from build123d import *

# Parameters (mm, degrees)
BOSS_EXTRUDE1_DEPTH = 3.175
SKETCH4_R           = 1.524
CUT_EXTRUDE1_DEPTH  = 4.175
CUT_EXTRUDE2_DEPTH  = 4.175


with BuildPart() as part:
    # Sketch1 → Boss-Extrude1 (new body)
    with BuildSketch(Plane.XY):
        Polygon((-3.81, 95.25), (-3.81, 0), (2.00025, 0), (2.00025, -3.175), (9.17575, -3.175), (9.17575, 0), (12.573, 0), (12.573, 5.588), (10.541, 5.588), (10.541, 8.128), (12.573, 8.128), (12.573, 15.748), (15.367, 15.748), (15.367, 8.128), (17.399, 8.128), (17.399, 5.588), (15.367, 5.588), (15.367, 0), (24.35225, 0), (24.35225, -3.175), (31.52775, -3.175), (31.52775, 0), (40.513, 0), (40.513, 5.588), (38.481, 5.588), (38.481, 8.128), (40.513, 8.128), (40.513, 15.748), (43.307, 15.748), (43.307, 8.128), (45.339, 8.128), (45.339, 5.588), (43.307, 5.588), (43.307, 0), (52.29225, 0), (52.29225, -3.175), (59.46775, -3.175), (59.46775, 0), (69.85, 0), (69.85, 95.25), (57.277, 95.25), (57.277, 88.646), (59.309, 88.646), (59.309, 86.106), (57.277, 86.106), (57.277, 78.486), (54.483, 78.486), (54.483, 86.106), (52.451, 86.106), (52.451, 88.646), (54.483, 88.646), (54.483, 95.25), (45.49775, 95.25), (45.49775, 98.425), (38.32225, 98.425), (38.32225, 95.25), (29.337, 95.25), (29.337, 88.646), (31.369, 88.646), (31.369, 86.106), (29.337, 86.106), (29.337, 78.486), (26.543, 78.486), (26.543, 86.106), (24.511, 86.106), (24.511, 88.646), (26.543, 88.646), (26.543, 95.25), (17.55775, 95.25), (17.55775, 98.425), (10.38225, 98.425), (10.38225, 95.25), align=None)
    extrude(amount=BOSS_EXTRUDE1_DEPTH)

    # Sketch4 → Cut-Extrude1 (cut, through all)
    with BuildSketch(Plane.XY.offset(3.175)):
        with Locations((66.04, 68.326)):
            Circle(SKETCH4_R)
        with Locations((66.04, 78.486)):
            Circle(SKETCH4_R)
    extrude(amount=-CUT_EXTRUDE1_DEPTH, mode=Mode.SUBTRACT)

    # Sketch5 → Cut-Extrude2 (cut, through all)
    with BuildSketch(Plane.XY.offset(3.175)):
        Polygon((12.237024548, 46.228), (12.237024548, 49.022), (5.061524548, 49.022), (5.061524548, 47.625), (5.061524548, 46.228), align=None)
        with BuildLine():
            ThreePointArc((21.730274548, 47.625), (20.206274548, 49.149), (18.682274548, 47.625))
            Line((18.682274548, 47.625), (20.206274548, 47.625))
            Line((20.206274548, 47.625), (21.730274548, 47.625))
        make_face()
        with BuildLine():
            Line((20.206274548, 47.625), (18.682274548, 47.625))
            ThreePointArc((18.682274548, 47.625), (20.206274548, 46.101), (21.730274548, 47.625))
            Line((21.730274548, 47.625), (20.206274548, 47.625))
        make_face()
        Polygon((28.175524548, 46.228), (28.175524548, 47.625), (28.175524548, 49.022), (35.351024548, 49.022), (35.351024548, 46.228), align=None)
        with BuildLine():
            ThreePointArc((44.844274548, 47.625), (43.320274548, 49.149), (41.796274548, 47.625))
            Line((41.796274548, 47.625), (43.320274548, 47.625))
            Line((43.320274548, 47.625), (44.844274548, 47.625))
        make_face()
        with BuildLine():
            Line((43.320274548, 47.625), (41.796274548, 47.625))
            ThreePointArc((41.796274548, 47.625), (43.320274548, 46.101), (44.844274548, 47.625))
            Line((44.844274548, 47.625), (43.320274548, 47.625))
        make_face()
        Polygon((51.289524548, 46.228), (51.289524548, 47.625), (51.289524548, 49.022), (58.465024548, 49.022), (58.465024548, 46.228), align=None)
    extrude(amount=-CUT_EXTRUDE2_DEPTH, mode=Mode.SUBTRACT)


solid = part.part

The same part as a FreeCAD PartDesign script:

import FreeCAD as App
import Part
import Sketcher

V = App.Vector
Q = App.Units.Quantity


def add_polygon(sketch, points):
    """Adds a closed chain of lines whose ends are joined by coincident constraints."""
    first, n = sketch.GeometryCount, len(points)
    for a, b in zip(points, points[1:] + points[:1]):
        sketch.addGeometry(Part.LineSegment(App.Vector(*a, 0), App.Vector(*b, 0)), False)
    for i in range(n):
        sketch.addConstraint(Sketcher.Constraint("Coincident", first + i, 2, first + (i + 1) % n, 1))

doc = App.newDocument("Part")
body = doc.addObject("PartDesign::Body", "Body")

# Sketch on XY plane
sketch1 = body.newObject("Sketcher::SketchObject", "Sketch")
sketch1.AttachmentSupport = (doc.getObject("XY_Plane"), [""])
sketch1.MapMode = "FlatFace"
add_polygon(sketch1, [(-3.81, 95.25), (-3.81, 0), (2.00025, 0), (2.00025, -3.175), (9.17575, -3.175), (9.17575, 0), (12.573, 0), (12.573, 5.588), (10.541, 5.588), (10.541, 8.128), (12.573, 8.128), (12.573, 15.748), (15.367, 15.748), (15.367, 8.128), (17.399, 8.128), (17.399, 5.588), (15.367, 5.588), (15.367, 0), (24.35225, 0), (24.35225, -3.175), (31.52775, -3.175), (31.52775, 0), (40.513, 0), (40.513, 5.588), (38.481, 5.588), (38.481, 8.128), (40.513, 8.128), (40.513, 15.748), (43.307, 15.748), (43.307, 8.128), (45.339, 8.128), (45.339, 5.588), (43.307, 5.588), (43.307, 0), (52.29225, 0), (52.29225, -3.175), (59.46775, -3.175), (59.46775, 0), (69.85, 0), (69.85, 95.25), (57.277, 95.25), (57.277, 88.646), (59.309, 88.646), (59.309, 86.106), (57.277, 86.106), (57.277, 78.486), (54.483, 78.486), (54.483, 86.106), (52.451, 86.106), (52.451, 88.646), (54.483, 88.646), (54.483, 95.25), (45.49775, 95.25), (45.49775, 98.425), (38.32225, 98.425), (38.32225, 95.25), (29.337, 95.25), (29.337, 88.646), (31.369, 88.646), (31.369, 86.106), (29.337, 86.106), (29.337, 78.486), (26.543, 78.486), (26.543, 86.106), (24.511, 86.106), (24.511, 88.646), (26.543, 88.646), (26.543, 95.25), (17.55775, 95.25), (17.55775, 98.425), (10.38225, 98.425), (10.38225, 95.25)])  # lines 0-71
sketch1.addConstraint(Sketcher.Constraint("Vertical", 0))
sketch1.addConstraint(Sketcher.Constraint("Horizontal", 1))
sketch1.addConstraint(Sketcher.Constraint("Vertical", 2))
sketch1.addConstraint(Sketcher.Constraint("Horizontal", 3))
sketch1.addConstraint(Sketcher.Constraint("Vertical", 4))
sketch1.addConstraint(Sketcher.Constraint("Horizontal", 5))
sketch1.addConstraint(Sketcher.Constraint("Vertical", 6))
sketch1.addConstraint(Sketcher.Constraint("Horizontal", 7))
sketch1.addConstraint(Sketcher.Constraint("Vertical", 8))
sketch1.addConstraint(Sketcher.Constraint("Horizontal", 9))
sketch1.addConstraint(Sketcher.Constraint("Vertical", 10))
sketch1.addConstraint(Sketcher.Constraint("Horizontal", 11))
sketch1.addConstraint(Sketcher.Constraint("Vertical", 12))
sketch1.addConstraint(Sketcher.Constraint("Horizontal", 13))
sketch1.addConstraint(Sketcher.Constraint("Vertical", 14))
sketch1.addConstraint(Sketcher.Constraint("Horizontal", 15))
sketch1.addConstraint(Sketcher.Constraint("Vertical", 16))
sketch1.addConstraint(Sketcher.Constraint("Horizontal", 17))
sketch1.addConstraint(Sketcher.Constraint("Vertical", 18))
sketch1.addConstraint(Sketcher.Constraint("Horizontal", 19))
sketch1.addConstraint(Sketcher.Constraint("Vertical", 20))
sketch1.addConstraint(Sketcher.Constraint("Horizontal", 21))
sketch1.addConstraint(Sketcher.Constraint("Vertical", 22))
sketch1.addConstraint(Sketcher.Constraint("Horizontal", 23))
sketch1.addConstraint(Sketcher.Constraint("Vertical", 24))
sketch1.addConstraint(Sketcher.Constraint("Horizontal", 25))
sketch1.addConstraint(Sketcher.Constraint("Vertical", 26))
sketch1.addConstraint(Sketcher.Constraint("Horizontal", 27))
sketch1.addConstraint(Sketcher.Constraint("Vertical", 28))
sketch1.addConstraint(Sketcher.Constraint("Horizontal", 29))
sketch1.addConstraint(Sketcher.Constraint("Vertical", 30))
sketch1.addConstraint(Sketcher.Constraint("Horizontal", 31))
sketch1.addConstraint(Sketcher.Constraint("Vertical", 32))
sketch1.addConstraint(Sketcher.Constraint("Horizontal", 33))
sketch1.addConstraint(Sketcher.Constraint("Vertical", 34))
sketch1.addConstraint(Sketcher.Constraint("Horizontal", 35))
sketch1.addConstraint(Sketcher.Constraint("Vertical", 36))
sketch1.addConstraint(Sketcher.Constraint("Horizontal", 37))
sketch1.addConstraint(Sketcher.Constraint("Vertical", 38))
sketch1.addConstraint(Sketcher.Constraint("Horizontal", 39))
sketch1.addConstraint(Sketcher.Constraint("Vertical", 40))
sketch1.addConstraint(Sketcher.Constraint("Horizontal", 41))
sketch1.addConstraint(Sketcher.Constraint("Vertical", 42))
sketch1.addConstraint(Sketcher.Constraint("Horizontal", 43))
sketch1.addConstraint(Sketcher.Constraint("Vertical", 44))
sketch1.addConstraint(Sketcher.Constraint("Horizontal", 45))
sketch1.addConstraint(Sketcher.Constraint("Vertical", 46))
sketch1.addConstraint(Sketcher.Constraint("Horizontal", 47))
sketch1.addConstraint(Sketcher.Constraint("Vertical", 48))
sketch1.addConstraint(Sketcher.Constraint("Horizontal", 49))
sketch1.addConstraint(Sketcher.Constraint("Vertical", 50))
sketch1.addConstraint(Sketcher.Constraint("Horizontal", 51))
sketch1.addConstraint(Sketcher.Constraint("Vertical", 52))
sketch1.addConstraint(Sketcher.Constraint("Horizontal", 53))
sketch1.addConstraint(Sketcher.Constraint("Vertical", 54))
sketch1.addConstraint(Sketcher.Constraint("Horizontal", 55))
sketch1.addConstraint(Sketcher.Constraint("Vertical", 56))
sketch1.addConstraint(Sketcher.Constraint("Horizontal", 57))
sketch1.addConstraint(Sketcher.Constraint("Vertical", 58))
sketch1.addConstraint(Sketcher.Constraint("Horizontal", 59))
sketch1.addConstraint(Sketcher.Constraint("Vertical", 60))
sketch1.addConstraint(Sketcher.Constraint("Horizontal", 61))
sketch1.addConstraint(Sketcher.Constraint("Vertical", 62))
sketch1.addConstraint(Sketcher.Constraint("Horizontal", 63))
sketch1.addConstraint(Sketcher.Constraint("Vertical", 64))
sketch1.addConstraint(Sketcher.Constraint("Horizontal", 65))
sketch1.addConstraint(Sketcher.Constraint("Vertical", 66))
sketch1.addConstraint(Sketcher.Constraint("Horizontal", 67))
sketch1.addConstraint(Sketcher.Constraint("Vertical", 68))
sketch1.addConstraint(Sketcher.Constraint("Horizontal", 69))
sketch1.addConstraint(Sketcher.Constraint("Vertical", 70))
sketch1.addConstraint(Sketcher.Constraint("Horizontal", 71))
sketch1.addConstraint(Sketcher.Constraint("PointOnObject", 0, 2, -1))
sketch1.addConstraint(Sketcher.Constraint("PointOnObject", 4, 2, -1))
sketch1.addConstraint(Sketcher.Constraint("PointOnObject", 16, 2, -1))
sketch1.addConstraint(Sketcher.Constraint("PointOnObject", 20, 2, -1))
sketch1.addConstraint(Sketcher.Constraint("PointOnObject", 32, 2, -1))
sketch1.addConstraint(Sketcher.Constraint("PointOnObject", 36, 2, -1))
sketch1.addConstraint(Sketcher.Constraint("Horizontal", 9, 2, 12, 2))
sketch1.addConstraint(Sketcher.Constraint("Horizontal", 7, 2, 14, 2))
sketch1.addConstraint(Sketcher.Constraint("Horizontal", 3, 2, 18, 2))
sketch1.addConstraint(Sketcher.Constraint("Horizontal", 15, 2, 22, 2))
sketch1.addConstraint(Sketcher.Constraint("Horizontal", 13, 2, 24, 2))
sketch1.addConstraint(Sketcher.Constraint("Horizontal", 11, 2, 26, 2))
sketch1.addConstraint(Sketcher.Constraint("Horizontal", 25, 2, 28, 2))
sketch1.addConstraint(Sketcher.Constraint("Horizontal", 23, 2, 30, 2))
sketch1.addConstraint(Sketcher.Constraint("Horizontal", 19, 2, 34, 2))
sketch1.addConstraint(Sketcher.Constraint("Horizontal", 43, 2, 46, 2))
sketch1.addConstraint(Sketcher.Constraint("Horizontal", 41, 2, 48, 2))
sketch1.addConstraint(Sketcher.Constraint("Horizontal", 39, 2, 50, 2))
sketch1.addConstraint(Sketcher.Constraint("Horizontal", 51, 2, 54, 2))
sketch1.addConstraint(Sketcher.Constraint("Horizontal", 49, 2, 56, 2))
sketch1.addConstraint(Sketcher.Constraint("Horizontal", 47, 2, 58, 2))
sketch1.addConstraint(Sketcher.Constraint("Horizontal", 45, 2, 60, 2))
sketch1.addConstraint(Sketcher.Constraint("Horizontal", 59, 2, 62, 2))
sketch1.addConstraint(Sketcher.Constraint("Horizontal", 57, 2, 64, 2))
sketch1.addConstraint(Sketcher.Constraint("Horizontal", 55, 2, 66, 2))
sketch1.addConstraint(Sketcher.Constraint("Horizontal", 53, 2, 68, 2))
sketch1.addConstraint(Sketcher.Constraint("Horizontal", 67, 2, 70, 2))
sketch1.addConstraint(Sketcher.Constraint("Vertical", 6, 2, 9, 2))
sketch1.addConstraint(Sketcher.Constraint("Vertical", 12, 2, 15, 2))
sketch1.addConstraint(Sketcher.Constraint("Vertical", 22, 2, 25, 2))
sketch1.addConstraint(Sketcher.Constraint("Vertical", 28, 2, 31, 2))
sketch1.addConstraint(Sketcher.Constraint("Vertical", 40, 2, 43, 2))
sketch1.addConstraint(Sketcher.Constraint("Vertical", 46, 2, 49, 2))
sketch1.addConstraint(Sketcher.Constraint("Vertical", 56, 2, 59, 2))
sketch1.addConstraint(Sketcher.Constraint("Vertical", 62, 2, 65, 2))
sketch1.addConstraint(Sketcher.Constraint("Equal", 9, 13))
sketch1.addConstraint(Sketcher.Constraint("Equal", 3, 19))
sketch1.addConstraint(Sketcher.Constraint("Equal", 17, 21))
sketch1.addConstraint(Sketcher.Constraint("Equal", 15, 23))
sketch1.addConstraint(Sketcher.Constraint("Equal", 11, 27))
sketch1.addConstraint(Sketcher.Constraint("Equal", 25, 29))
sketch1.addConstraint(Sketcher.Constraint("Equal", 21, 33))
sketch1.addConstraint(Sketcher.Constraint("Equal", 19, 35))
sketch1.addConstraint(Sketcher.Constraint("Equal", 31, 41))
sketch1.addConstraint(Sketcher.Constraint("Equal", 27, 45))
sketch1.addConstraint(Sketcher.Constraint("Equal", 43, 47))
sketch1.addConstraint(Sketcher.Constraint("Equal", 33, 51))
sketch1.addConstraint(Sketcher.Constraint("Equal", 35, 53))
sketch1.addConstraint(Sketcher.Constraint("Equal", 51, 55))
sketch1.addConstraint(Sketcher.Constraint("Equal", 49, 57))
sketch1.addConstraint(Sketcher.Constraint("Equal", 45, 61))
sketch1.addConstraint(Sketcher.Constraint("Equal", 59, 63))
sketch1.addConstraint(Sketcher.Constraint("Equal", 55, 67))
sketch1.addConstraint(Sketcher.Constraint("Equal", 53, 69))
sketch1.addConstraint(Sketcher.Constraint("Equal", 30, 42))
sketch1.addConstraint(Sketcher.Constraint("Equal", 28, 44))
sketch1.addConstraint(Sketcher.Constraint("Equal", 36, 52))
sketch1.addConstraint(Sketcher.Constraint("DistanceY", 8, 1, 8, 2, Q("0.1 in")))
sketch1.addConstraint(Sketcher.Constraint("DistanceY", 10, 1, 10, 2, Q("0.3 in")))
sketch1.addConstraint(Sketcher.Constraint("DistanceX", 7, 2, 7, 1, Q("0.08 in")))
sketch1.addConstraint(Sketcher.Constraint("DistanceX", 11, 1, 11, 2, Q("0.11 in")))
sketch1.addConstraint(Sketcher.Constraint("DistanceY", 0, 2, 0, 1, Q("3.75 in")))
sketch1.addConstraint(Sketcher.Constraint("DistanceY", 6, 1, 6, 2, Q("0.22 in")))
sketch1.addConstraint(Sketcher.Constraint("DistanceY", 40, 2, 40, 1, Q("0.26 in")))
sketch1.addConstraint(Sketcher.Constraint("DistanceX", 39, 2, 39, 1, Q("0.495 in")))
sketch1.addConstraint(Sketcher.Constraint("DistanceY", 2, 2, 2, 1, Q("0.125 in")))
sketch1.addConstraint(Sketcher.Constraint("DistanceX", 0, 2, -1, 1, Q("0.15 in")))
sketch1.addConstraint(Sketcher.Constraint("DistanceX", -1, 1, 37, 2, Q("2.75 in")))
sketch1.addConstraint(Sketcher.Constraint("DistanceX", 3, 1, 3, 2, Q("0.2825 in")))
sketch1.addConstraint(Sketcher.Constraint("DistanceX", -1, 1, 5, 2, Q("0.495 in")))
sketch1.addConstraint(Sketcher.Constraint("DistanceX", -1, 1, 21, 2, Q("1.595 in")))
sketch1.addConstraint(Sketcher.Constraint("DistanceX", 1, 1, 1, 2, 5.81025))
pad1 = body.newObject("PartDesign::Pad", "Pad")
pad1.Profile = sketch1
pad1.Length = Q("0.125 in")

# Sketch on XY plane
sketch2 = body.newObject("Sketcher::SketchObject", "Sketch001")
sketch2.AttachmentSupport = (doc.getObject("XY_Plane"), [""])
sketch2.MapMode = "FlatFace"
sketch2.AttachmentOffset = App.Placement(V(0, 0, 0.125 * 25.4), App.Rotation())
sketch2.addGeometry(Part.Circle(V(66.04, 68.326, 0), V(0, 0, 1), 1.524), False)
sketch2.addGeometry(Part.Circle(V(66.04, 78.486, 0), V(0, 0, 1), 1.524), False)
sketch2.addConstraint(Sketcher.Constraint("Equal", 0, 1))
sketch2.addConstraint(Sketcher.Constraint("Vertical", 0, 3, 1, 3))
sketch2.addConstraint(Sketcher.Constraint("Diameter", 0, Q("0.12 in")))
sketch2.addConstraint(Sketcher.Constraint("DistanceX", -1, 1, 0, 3, Q("2.6 in")))
sketch2.addConstraint(Sketcher.Constraint("DistanceY", 0, 3, 1, 3, Q("0.4 in")))
sketch2.addConstraint(Sketcher.Constraint("DistanceY", -1, 1, 0, 3, Q("2.69 in")))
pocket1 = body.newObject("PartDesign::Pocket", "Pocket")
pocket1.Profile = sketch2
pocket1.Type = "ThroughAll"

# Sketch on XY plane
sketch3 = body.newObject("Sketcher::SketchObject", "Sketch002")
sketch3.AttachmentSupport = (doc.getObject("XY_Plane"), [""])
sketch3.MapMode = "FlatFace"
sketch3.AttachmentOffset = App.Placement(V(0, 0, 0.125 * 25.4), App.Rotation())
add_polygon(sketch3, [(12.237025, 46.228), (12.237025, 49.022), (5.061525, 49.022), (5.061525, 46.228)])  # lines 0-3
sketch3.addGeometry(Part.Circle(V(20.206275, 47.625, 0), V(0, 0, 1), 1.524), False)  # 4
add_polygon(sketch3, [(28.175525, 49.022), (28.175525, 46.228), (35.351025, 46.228), (35.351025, 49.022)])  # lines 5-8
sketch3.addGeometry(Part.Circle(V(43.320275, 47.625, 0), V(0, 0, 1), 1.524), False)  # 9
add_polygon(sketch3, [(51.289525, 49.022), (51.289525, 46.228), (58.465025, 46.228), (58.465025, 49.022)])  # lines 10-13
sketch3.addConstraint(Sketcher.Constraint("Vertical", 0))
sketch3.addConstraint(Sketcher.Constraint("Horizontal", 1))
sketch3.addConstraint(Sketcher.Constraint("Vertical", 2))
sketch3.addConstraint(Sketcher.Constraint("Horizontal", 3))
sketch3.addConstraint(Sketcher.Constraint("Vertical", 5))
sketch3.addConstraint(Sketcher.Constraint("Horizontal", 6))
sketch3.addConstraint(Sketcher.Constraint("Vertical", 7))
sketch3.addConstraint(Sketcher.Constraint("Horizontal", 8))
sketch3.addConstraint(Sketcher.Constraint("Vertical", 10))
sketch3.addConstraint(Sketcher.Constraint("Horizontal", 11))
sketch3.addConstraint(Sketcher.Constraint("Vertical", 12))
sketch3.addConstraint(Sketcher.Constraint("Horizontal", 13))
sketch3.addConstraint(Sketcher.Constraint("Equal", 4, 9))
sketch3.addConstraint(Sketcher.Constraint("Horizontal", 4, 3, 9, 3))
sketch3.addConstraint(Sketcher.Constraint("Horizontal", 3, 2, 5, 2))
sketch3.addConstraint(Sketcher.Constraint("Horizontal", 1, 2, 7, 2))
sketch3.addConstraint(Sketcher.Constraint("Horizontal", 6, 2, 10, 2))
sketch3.addConstraint(Sketcher.Constraint("Horizontal", 8, 2, 12, 2))
sketch3.addConstraint(Sketcher.Constraint("Equal", 3, 6))
sketch3.addConstraint(Sketcher.Constraint("Equal", 8, 11))
sketch3.addConstraint(Sketcher.Constraint("Diameter", 4, Q("0.12 in")))
sketch3.addConstraint(Sketcher.Constraint("DistanceY", 0, 1, 0, 2, Q("0.11 in")))
sketch3.addConstraint(Sketcher.Constraint("DistanceY", -1, 1, 0, 2, Q("1.93 in")))
sketch3.addConstraint(Sketcher.Constraint("DistanceX", 4, 3, 9, 3, Q("0.91 in")))
sketch3.addConstraint(Sketcher.Constraint("DistanceX", 2, 2, 5, 2, Q("0.91 in")))
sketch3.addConstraint(Sketcher.Constraint("DistanceX", 5, 2, 10, 2, Q("0.91 in")))
sketch3.addConstraint(Sketcher.Constraint("DistanceX", 1, 2, 1, 1, Q("0.2825 in")))
sketch3.addConstraint(Sketcher.Constraint("DistanceY", -1, 1, 4, 3, Q("1.875 in")))
sketch3.addConstraint(Sketcher.Constraint("DistanceX", 0, 2, 4, 3, 7.96925))
sketch3.addConstraint(Sketcher.Constraint("DistanceX", -1, 1, 4, 3, 20.206275))
pocket2 = body.newObject("PartDesign::Pocket", "Pocket001")
pocket2.Profile = sketch3
pocket2.Type = "ThroughAll"

doc.recompute()
